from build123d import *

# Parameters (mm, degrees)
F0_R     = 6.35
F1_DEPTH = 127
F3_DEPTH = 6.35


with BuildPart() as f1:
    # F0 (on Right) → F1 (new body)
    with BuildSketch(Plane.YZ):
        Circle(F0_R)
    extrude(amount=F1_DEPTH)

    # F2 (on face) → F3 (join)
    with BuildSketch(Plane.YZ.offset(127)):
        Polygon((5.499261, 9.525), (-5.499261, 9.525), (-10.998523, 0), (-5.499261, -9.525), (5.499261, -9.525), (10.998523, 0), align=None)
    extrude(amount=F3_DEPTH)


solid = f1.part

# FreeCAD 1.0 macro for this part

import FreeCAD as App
import Part
import Sketcher
Q = App.Units.Quantity

doc = App.newDocument("Part")
body = doc.addObject("PartDesign::Body", "Body")

# Sketch on YZ plane
sketch1 = body.newObject("Sketcher::SketchObject", "Sketch")
sketch1.AttachmentSupport = (doc.getObject("YZ_Plane"), [""])
sketch1.MapMode = "FlatFace"
sketch1.addGeometry(Part.Circle(App.Vector(0, 0, 0), App.Vector(0, 0, 1), 6), False)
sketch1.addConstraint([
    Sketcher.Constraint("Coincident", 0, 3, -1, 1),
    Sketcher.Constraint("Diameter", 0, Q("0.5 in")),
])
pad1 = body.newObject("PartDesign::Pad", "Pad")
pad1.Profile = sketch1
pad1.Length = Q("5 in")

# Sketch on YZ plane
sketch2 = body.newObject("Sketcher::SketchObject", "Sketch001")
sketch2.AttachmentSupport = (doc.getObject("YZ_Plane"), [""])
sketch2.MapMode = "FlatFace"
sketch2.AttachmentOffset = App.Placement(App.Vector(0, 0, 5 * 25.4), App.Rotation())
sketch2.addGeometry([
    Part.LineSegment(App.Vector(5, 10, 0), App.Vector(-5, 10, 0)),  # 0
    Part.LineSegment(App.Vector(-5, 10, 0), App.Vector(-11, 0, 0)),  # 1
    Part.LineSegment(App.Vector(-11, 0, 0), App.Vector(-5, -10, 0)),  # 2
    Part.LineSegment(App.Vector(-5, -10, 0), App.Vector(5, -10, 0)),  # 3
    Part.LineSegment(App.Vector(5, -10, 0), App.Vector(11, 0, 0)),  # 4
    Part.LineSegment(App.Vector(11, 0, 0), App.Vector(5, 10, 0)),  # 5
], False)
sketch2.addConstraint([
    Sketcher.Constraint("Coincident", 0, 2, 1, 1),
    Sketcher.Constraint("Coincident", 1, 2, 2, 1),
    Sketcher.Constraint("Coincident", 2, 2, 3, 1),
    Sketcher.Constraint("Coincident", 3, 2, 4, 1),
    Sketcher.Constraint("Coincident", 4, 2, 5, 1),
    Sketcher.Constraint("Coincident", 5, 2, 0, 1),
    Sketcher.Constraint("Horizontal", 0),
    Sketcher.Constraint("Horizontal", 3),
    Sketcher.Constraint("Symmetric", 0, 2, 3, 2, -1, 1),
    Sketcher.Constraint("Symmetric", 1, 2, 4, 2, -1, 1),
    Sketcher.Constraint("PointOnObject", 1, 2, -1),
    Sketcher.Constraint("Parallel", 2, 5),
    Sketcher.Constraint("Vertical", 0, 2, 2, 2),
    Sketcher.Constraint("Angle", 1, Q("-120.000003 deg")),
    Sketcher.Constraint("DistanceY", 2, 2, 0, 2, Q("0.75 in")),
    Sketcher.Constraint("DistanceX", 0, 2, 0, 1, Q("10.998522 mm")),
])
pad2 = body.newObject("PartDesign::Pad", "Pad001")
pad2.Profile = sketch2
pad2.Length = Q("0.25 in")

doc.recompute()
